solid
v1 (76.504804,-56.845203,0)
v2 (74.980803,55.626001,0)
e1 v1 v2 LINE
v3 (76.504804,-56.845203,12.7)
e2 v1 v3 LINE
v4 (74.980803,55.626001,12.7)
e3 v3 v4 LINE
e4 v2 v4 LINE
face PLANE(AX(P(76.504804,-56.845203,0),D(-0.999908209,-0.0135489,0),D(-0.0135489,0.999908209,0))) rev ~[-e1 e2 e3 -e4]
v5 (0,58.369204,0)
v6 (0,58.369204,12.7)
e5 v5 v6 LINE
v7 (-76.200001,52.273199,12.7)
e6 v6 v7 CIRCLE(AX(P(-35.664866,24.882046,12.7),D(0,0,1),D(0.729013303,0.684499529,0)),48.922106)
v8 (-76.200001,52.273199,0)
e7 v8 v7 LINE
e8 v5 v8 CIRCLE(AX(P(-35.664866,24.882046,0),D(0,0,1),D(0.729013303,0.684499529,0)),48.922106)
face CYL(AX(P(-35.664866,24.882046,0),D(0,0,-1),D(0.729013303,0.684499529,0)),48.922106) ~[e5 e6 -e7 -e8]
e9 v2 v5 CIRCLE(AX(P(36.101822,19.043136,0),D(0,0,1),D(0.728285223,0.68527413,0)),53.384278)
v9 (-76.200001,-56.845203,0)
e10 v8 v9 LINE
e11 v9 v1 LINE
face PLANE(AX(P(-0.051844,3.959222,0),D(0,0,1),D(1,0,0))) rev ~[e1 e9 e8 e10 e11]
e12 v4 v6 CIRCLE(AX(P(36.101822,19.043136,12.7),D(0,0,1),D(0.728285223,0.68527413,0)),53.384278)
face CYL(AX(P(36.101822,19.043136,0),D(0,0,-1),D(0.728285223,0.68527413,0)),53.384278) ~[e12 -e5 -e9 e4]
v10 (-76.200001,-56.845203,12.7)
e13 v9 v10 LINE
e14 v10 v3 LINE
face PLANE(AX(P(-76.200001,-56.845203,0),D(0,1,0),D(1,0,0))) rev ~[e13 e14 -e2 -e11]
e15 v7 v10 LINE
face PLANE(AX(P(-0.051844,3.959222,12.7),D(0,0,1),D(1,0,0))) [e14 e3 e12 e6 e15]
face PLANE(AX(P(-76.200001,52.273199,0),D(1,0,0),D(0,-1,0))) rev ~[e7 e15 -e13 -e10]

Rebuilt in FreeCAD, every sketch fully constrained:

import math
import FreeCAD as App
import Part
import Sketcher
from FreeCAD import Vector
Q = App.Units.Quantity

doc = App.newDocument("Part")
body = doc.addObject("PartDesign::Body", "Body")

sketch1 = body.newObject("Sketcher::SketchObject", "Sketch")
sketch1.AttachmentSupport = (doc.getObject("XY_Plane"), [""])
sketch1.MapMode = "FlatFace"
sketch1.addGeometry(Part.ArcOfCircle(Part.Circle(Vector(-36, 25, 0), Vector(0, 0, 1), 49), math.radians(43), math.radians(146)), False)
sketch1.addGeometry(Part.LineSegment(Vector(-76, 52, 0), Vector(-76, -57, 0)), False)
sketch1.addGeometry(Part.LineSegment(Vector(-76, -57, 0), Vector(77, -57, 0)), False)
sketch1.addGeometry(Part.LineSegment(Vector(77, -57, 0), Vector(75, 56, 0)), False)
sketch1.addGeometry(Part.ArcOfCircle(Part.Circle(Vector(36, 19, 0), Vector(0, 0, 1), 53), math.radians(43), math.radians(133)), False)
sketch1.addConstraint(Sketcher.Constraint("Coincident", 0, 2, 1, 1))
sketch1.addConstraint(Sketcher.Constraint("Coincident", 1, 2, 2, 1))
sketch1.addConstraint(Sketcher.Constraint("Coincident", 2, 2, 3, 1))
sketch1.addConstraint(Sketcher.Constraint("Coincident", 3, 2, 4, 1))
sketch1.addConstraint(Sketcher.Constraint("Coincident", 4, 2, 0, 1))
sketch1.addConstraint(Sketcher.Constraint("Vertical", 1))
sketch1.addConstraint(Sketcher.Constraint("Horizontal", 2))
sketch1.addConstraint(Sketcher.Constraint("PointOnObject", 4, 2, -2))
sketch1.addConstraint(Sketcher.Constraint("DistanceX", 0, 2, -1, 1, Q("3 in")))
sketch1.addConstraint(Sketcher.Constraint("DistanceX", 2, 1, 2, 2, Q("6.0120002 in")))
sketch1.addConstraint(Sketcher.Constraint("DistanceY", 1, 2, 1, 1, Q("4.2960001 in")))
sketch1.addConstraint(Sketcher.Constraint("DistanceY", -1, 1, 3, 2, Q("2.19 in")))
sketch1.addConstraint(Sketcher.Constraint("DistanceX", 3, 2, 2, 2, Q("0.06 in")))
sketch1.addConstraint(Sketcher.Constraint("DistanceY", 0, 2, 4, 2, Q("0.2400002 in")))
sketch1.addConstraint(Sketcher.Constraint("DistanceY", -1, 1, 0, 2, Q("2.058 in")))
sketch1.addConstraint(Sketcher.Constraint("Radius", 4, Q("53.384278 mm")))
sketch1.addConstraint(Sketcher.Constraint("Radius", 0, Q("48.922106 mm")))
pad1 = body.newObject("PartDesign::Pad", "Pad")
pad1.Profile = sketch1
pad1.Length = Q("0.5 in")

doc.recompute()
